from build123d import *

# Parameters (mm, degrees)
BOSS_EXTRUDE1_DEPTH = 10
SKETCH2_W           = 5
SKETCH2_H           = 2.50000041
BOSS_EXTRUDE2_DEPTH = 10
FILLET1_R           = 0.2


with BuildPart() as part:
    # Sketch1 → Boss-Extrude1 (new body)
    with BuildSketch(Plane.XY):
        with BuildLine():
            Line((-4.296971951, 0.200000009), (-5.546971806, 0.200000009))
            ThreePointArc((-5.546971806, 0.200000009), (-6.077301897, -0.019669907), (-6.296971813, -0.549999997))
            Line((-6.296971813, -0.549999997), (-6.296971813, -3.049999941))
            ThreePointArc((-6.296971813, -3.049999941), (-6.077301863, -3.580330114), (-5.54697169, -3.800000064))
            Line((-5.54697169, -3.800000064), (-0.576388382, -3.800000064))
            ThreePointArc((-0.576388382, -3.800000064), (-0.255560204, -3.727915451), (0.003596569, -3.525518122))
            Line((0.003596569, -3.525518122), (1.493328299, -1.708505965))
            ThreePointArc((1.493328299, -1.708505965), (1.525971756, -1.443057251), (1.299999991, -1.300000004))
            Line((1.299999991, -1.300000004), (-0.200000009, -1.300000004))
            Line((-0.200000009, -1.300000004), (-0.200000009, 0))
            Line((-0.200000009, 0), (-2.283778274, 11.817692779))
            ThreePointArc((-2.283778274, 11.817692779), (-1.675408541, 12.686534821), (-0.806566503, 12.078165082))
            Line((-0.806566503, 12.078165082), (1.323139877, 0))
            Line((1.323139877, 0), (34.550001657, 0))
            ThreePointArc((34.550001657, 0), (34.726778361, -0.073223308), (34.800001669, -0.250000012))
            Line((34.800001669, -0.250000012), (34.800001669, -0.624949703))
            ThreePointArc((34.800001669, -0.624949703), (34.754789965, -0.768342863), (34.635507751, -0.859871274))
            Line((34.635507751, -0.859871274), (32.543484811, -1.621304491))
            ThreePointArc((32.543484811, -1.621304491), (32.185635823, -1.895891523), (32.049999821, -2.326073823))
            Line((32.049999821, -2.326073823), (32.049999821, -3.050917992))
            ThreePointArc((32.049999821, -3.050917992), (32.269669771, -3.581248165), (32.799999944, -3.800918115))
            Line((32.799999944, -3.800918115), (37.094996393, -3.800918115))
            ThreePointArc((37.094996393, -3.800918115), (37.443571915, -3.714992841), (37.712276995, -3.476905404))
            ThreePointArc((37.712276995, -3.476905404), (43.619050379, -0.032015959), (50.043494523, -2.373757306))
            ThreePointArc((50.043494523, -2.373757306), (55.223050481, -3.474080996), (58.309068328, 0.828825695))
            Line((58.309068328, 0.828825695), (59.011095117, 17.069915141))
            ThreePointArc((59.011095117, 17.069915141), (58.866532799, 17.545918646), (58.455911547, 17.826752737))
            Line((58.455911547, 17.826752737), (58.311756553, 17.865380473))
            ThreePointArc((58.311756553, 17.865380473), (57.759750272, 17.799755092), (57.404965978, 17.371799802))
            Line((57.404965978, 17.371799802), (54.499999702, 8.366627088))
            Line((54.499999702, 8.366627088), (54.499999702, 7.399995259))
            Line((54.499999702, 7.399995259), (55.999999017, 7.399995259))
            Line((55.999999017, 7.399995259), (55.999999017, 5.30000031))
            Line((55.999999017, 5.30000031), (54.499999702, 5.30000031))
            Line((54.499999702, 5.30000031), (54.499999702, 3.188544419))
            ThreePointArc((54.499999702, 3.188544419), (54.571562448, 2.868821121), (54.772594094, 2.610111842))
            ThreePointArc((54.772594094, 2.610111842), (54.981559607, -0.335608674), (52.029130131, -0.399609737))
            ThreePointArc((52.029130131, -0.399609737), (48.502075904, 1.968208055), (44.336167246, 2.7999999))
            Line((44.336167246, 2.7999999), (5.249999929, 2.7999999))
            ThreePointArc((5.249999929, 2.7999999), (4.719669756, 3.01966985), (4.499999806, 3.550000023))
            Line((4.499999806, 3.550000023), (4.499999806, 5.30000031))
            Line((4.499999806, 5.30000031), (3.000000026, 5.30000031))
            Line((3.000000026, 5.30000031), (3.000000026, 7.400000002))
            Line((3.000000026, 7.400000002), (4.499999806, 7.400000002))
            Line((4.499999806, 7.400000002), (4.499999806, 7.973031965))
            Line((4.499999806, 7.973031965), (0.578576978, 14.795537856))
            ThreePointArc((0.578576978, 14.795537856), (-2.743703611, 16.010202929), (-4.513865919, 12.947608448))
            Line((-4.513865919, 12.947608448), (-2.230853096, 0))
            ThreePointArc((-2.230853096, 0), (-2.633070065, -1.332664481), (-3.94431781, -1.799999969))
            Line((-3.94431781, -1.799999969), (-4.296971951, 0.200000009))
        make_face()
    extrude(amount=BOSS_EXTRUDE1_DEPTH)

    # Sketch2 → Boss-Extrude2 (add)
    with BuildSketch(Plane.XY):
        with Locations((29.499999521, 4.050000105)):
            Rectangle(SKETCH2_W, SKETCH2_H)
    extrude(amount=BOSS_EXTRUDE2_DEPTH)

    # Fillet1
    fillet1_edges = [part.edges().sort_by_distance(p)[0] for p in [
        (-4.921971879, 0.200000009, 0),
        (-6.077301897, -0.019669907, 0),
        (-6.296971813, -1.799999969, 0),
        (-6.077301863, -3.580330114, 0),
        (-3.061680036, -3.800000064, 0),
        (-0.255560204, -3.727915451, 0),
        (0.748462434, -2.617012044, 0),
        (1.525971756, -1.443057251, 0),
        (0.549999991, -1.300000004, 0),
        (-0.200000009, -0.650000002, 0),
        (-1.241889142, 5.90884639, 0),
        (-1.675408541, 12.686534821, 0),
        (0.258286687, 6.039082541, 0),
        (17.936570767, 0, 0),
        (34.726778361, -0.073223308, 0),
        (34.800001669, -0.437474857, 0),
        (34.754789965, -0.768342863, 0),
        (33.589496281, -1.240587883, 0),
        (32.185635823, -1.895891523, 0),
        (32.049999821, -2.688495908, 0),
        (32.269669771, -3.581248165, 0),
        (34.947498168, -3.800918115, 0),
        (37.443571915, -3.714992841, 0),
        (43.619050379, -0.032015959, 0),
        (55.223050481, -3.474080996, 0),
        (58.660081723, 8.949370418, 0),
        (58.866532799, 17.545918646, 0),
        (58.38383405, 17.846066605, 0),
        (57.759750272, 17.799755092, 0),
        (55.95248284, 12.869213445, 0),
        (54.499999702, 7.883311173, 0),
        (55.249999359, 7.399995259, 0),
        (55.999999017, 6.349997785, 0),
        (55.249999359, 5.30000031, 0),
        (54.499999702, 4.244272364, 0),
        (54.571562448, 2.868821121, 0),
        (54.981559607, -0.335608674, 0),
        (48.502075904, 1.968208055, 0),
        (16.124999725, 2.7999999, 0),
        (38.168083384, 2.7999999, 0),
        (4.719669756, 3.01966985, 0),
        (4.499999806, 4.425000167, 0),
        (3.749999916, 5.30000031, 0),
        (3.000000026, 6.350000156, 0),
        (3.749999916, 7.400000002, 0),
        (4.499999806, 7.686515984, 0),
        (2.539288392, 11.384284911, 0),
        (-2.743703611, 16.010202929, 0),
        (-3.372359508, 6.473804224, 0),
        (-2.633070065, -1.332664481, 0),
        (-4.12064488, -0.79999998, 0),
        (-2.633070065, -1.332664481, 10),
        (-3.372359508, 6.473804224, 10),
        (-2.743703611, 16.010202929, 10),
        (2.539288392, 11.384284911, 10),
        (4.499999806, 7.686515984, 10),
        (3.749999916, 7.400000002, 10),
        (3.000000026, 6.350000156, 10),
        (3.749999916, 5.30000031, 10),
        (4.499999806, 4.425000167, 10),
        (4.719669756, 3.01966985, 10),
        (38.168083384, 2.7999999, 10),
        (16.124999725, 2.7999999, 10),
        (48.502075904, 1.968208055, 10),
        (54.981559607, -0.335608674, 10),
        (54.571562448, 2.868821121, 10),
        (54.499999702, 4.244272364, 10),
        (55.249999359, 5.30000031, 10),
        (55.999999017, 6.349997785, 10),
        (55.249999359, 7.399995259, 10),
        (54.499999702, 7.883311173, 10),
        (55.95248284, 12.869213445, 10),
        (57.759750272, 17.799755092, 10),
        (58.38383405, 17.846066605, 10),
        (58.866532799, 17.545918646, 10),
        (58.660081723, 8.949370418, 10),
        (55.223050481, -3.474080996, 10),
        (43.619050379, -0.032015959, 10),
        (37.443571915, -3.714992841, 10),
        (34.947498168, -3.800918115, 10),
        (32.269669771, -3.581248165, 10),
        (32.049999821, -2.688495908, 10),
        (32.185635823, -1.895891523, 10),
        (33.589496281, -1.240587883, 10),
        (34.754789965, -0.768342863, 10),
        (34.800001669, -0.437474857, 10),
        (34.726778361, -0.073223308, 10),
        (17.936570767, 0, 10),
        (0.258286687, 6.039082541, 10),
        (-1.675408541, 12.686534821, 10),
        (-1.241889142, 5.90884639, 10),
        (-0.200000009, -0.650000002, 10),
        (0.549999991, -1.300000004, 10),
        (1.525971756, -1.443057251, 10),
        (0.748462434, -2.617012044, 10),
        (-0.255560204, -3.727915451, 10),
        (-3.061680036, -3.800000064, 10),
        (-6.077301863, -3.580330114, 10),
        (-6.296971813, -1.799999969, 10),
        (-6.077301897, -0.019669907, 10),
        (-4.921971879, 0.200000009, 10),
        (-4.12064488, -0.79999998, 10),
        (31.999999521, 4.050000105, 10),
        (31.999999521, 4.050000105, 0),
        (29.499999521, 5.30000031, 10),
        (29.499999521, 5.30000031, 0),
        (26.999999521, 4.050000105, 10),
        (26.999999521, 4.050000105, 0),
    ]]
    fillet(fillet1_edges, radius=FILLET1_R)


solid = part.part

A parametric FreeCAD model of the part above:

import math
import FreeCAD as App
import Part
import Sketcher

V = App.Vector
Q = App.Units.Quantity


def edges_at(feature, points):
    """Names of the edges that pass closest to the given points."""
    edges = feature.Shape.Edges
    near = lambda p: min(range(len(edges)), key=lambda i: edges[i].distToShape(Part.Vertex(*p))[0])
    return sorted({f"Edge{near(p) + 1}" for p in points})

doc = App.newDocument("Part")
body = doc.addObject("PartDesign::Body", "Body")

# Sketch on XY plane
sketch1 = doc.addObject("Sketcher::SketchObject", "Sketch")
body.addObject(sketch1)
sketch1.AttachmentSupport = (doc.XY_Plane, [""])
sketch1.MapMode = "FlatFace"
sketch1.addGeometry([
    Part.LineSegment(V(-4.3, 0.2, 0), V(-5.55, 0.2, 0)),  # 0
    Part.ArcOfCircle(Part.Circle(V(-5.55, -0.55, 0), V(0, 0, 1), 0.75), math.radians(90), math.radians(180)),  # 1
    Part.LineSegment(V(-6.3, -0.55, 0), V(-6.3, -3.05, 0)),  # 2
    Part.ArcOfCircle(Part.Circle(V(-5.55, -3.05, 0), V(0, 0, 1), 0.75), math.radians(180), math.radians(270)),  # 3
    Part.LineSegment(V(-5.55, -3.8, 0), V(-0.58, -3.8, 0)),  # 4
    Part.ArcOfCircle(Part.Circle(V(-0.58, -3.05, 0), V(0, 0, 1), 0.75), math.radians(-90), math.radians(-39)),  # 5
    Part.LineSegment(V(0, -3.53, 0), V(1.49, -1.71, 0)),  # 6
    Part.ArcOfCircle(Part.Circle(V(1.3, -1.55, 0), V(0, 0, 1), 0.25), math.radians(-39), math.radians(90)),  # 7
    Part.LineSegment(V(1.3, -1.3, 0), V(-0.2, -1.3, 0)),  # 8
    Part.LineSegment(V(-0.2, -1.3, 0), V(-0.2, 0, 0)),  # 9
    Part.LineSegment(V(-0.2, 0, 0), V(-2.28, 11.82, 0)),  # 10
    Part.ArcOfCircle(Part.Circle(V(-1.55, 11.95, 0), V(0, 0, 1), 0.75), math.radians(10), math.radians(190)),  # 11
    Part.LineSegment(V(-0.81, 12.08, 0), V(1.32, 0, 0)),  # 12
    Part.LineSegment(V(1.32, 0, 0), V(34.55, 0, 0)),  # 13
    Part.ArcOfCircle(Part.Circle(V(34.55, -0.25, 0), V(0, 0, 1), 0.25), math.radians(0), math.radians(90)),  # 14
    Part.LineSegment(V(34.8, -0.25, 0), V(34.8, -0.62, 0)),  # 15
    Part.ArcOfCircle(Part.Circle(V(34.55, -0.62, 0), V(0, 0, 1), 0.25), math.radians(-70), math.radians(0)),  # 16
    Part.LineSegment(V(34.64, -0.86, 0), V(32.54, -1.62, 0)),  # 17
    Part.ArcOfCircle(Part.Circle(V(32.8, -2.33, 0), V(0, 0, 1), 0.75), math.radians(110), math.radians(180)),  # 18
    Part.LineSegment(V(32.05, -2.33, 0), V(32.05, -3.05, 0)),  # 19
    Part.ArcOfCircle(Part.Circle(V(32.8, -3.05, 0), V(0, 0, 1), 0.75), math.radians(180), math.radians(270)),  # 20
    Part.LineSegment(V(32.8, -3.8, 0), V(37.09, -3.8, 0)),  # 21
    Part.ArcOfCircle(Part.Circle(V(37.09, -3.05, 0), V(0, 0, 1), 0.75), math.radians(-90), math.radians(-35)),  # 22
    Part.ArcOfCircle(Part.Circle(V(44.34, -8.05, 0), V(0, 0, 1), 8.05), math.radians(45), math.radians(145)),  # 23
    Part.ArcOfCircle(Part.Circle(V(53.47, 1.04, 0), V(0, 0, 1), 4.84), math.radians(-135), math.radians(-2)),  # 24
    Part.LineSegment(V(58.31, 0.83, 0), V(59.01, 17.07, 0)),  # 25
    Part.ArcOfCircle(Part.Circle(V(58.26, 17.1, 0), V(0, 0, 1), 0.75), math.radians(-2), math.radians(75)),  # 26
    Part.LineSegment(V(58.46, 17.83, 0), V(58.31, 17.87, 0)),  # 27
    Part.ArcOfCircle(Part.Circle(V(58.12, 17.14, 0), V(0, 0, 1), 0.75), math.radians(75), math.radians(162)),  # 28
    Part.LineSegment(V(57.4, 17.37, 0), V(54.5, 8.37, 0)),  # 29
    Part.LineSegment(V(54.5, 8.37, 0), V(54.5, 7.4, 0)),  # 30
    Part.LineSegment(V(54.5, 7.4, 0), V(56, 7.4, 0)),  # 31
    Part.LineSegment(V(56, 7.4, 0), V(56, 5.3, 0)),  # 32
    Part.LineSegment(V(56, 5.3, 0), V(54.5, 5.3, 0)),  # 33
    Part.LineSegment(V(54.5, 5.3, 0), V(54.5, 3.19, 0)),  # 34
    Part.ArcOfCircle(Part.Circle(V(55.25, 3.19, 0), V(0, 0, 1), 0.75), math.radians(180), math.radians(230)),  # 35
    Part.ArcOfCircle(Part.Circle(V(53.47, 1.04, 0), V(0, 0, 1), 2.04), math.radians(-135), math.radians(50)),  # 36
    Part.ArcOfCircle(Part.Circle(V(44.34, -8.05, 0), V(0, 0, 1), 10.85), math.radians(45), math.radians(90)),  # 37
    Part.LineSegment(V(44.34, 2.8, 0), V(5.25, 2.8, 0)),  # 38
    Part.ArcOfCircle(Part.Circle(V(5.25, 3.55, 0), V(0, 0, 1), 0.75), math.radians(180), math.radians(270)),  # 39
    Part.LineSegment(V(4.5, 3.55, 0), V(4.5, 5.3, 0)),  # 40
    Part.LineSegment(V(4.5, 5.3, 0), V(3, 5.3, 0)),  # 41
    Part.LineSegment(V(3, 5.3, 0), V(3, 7.4, 0)),  # 42
    Part.LineSegment(V(3, 7.4, 0), V(4.5, 7.4, 0)),  # 43
    Part.LineSegment(V(4.5, 7.4, 0), V(4.5, 7.97, 0)),  # 44
    Part.LineSegment(V(4.5, 7.97, 0), V(0.58, 14.8, 0)),  # 45
    Part.ArcOfCircle(Part.Circle(V(-1.81, 13.43, 0), V(0, 0, 1), 2.75), math.radians(30), math.radians(190)),  # 46
    Part.LineSegment(V(-4.51, 12.95, 0), V(-2.23, 0, 0)),  # 47
    Part.ArcOfCircle(Part.Circle(V(-3.75, -0.27, 0), V(0, 0, 1), 1.54), math.radians(-97), math.radians(10)),  # 48
    Part.LineSegment(V(-3.94, -1.8, 0), V(-4.3, 0.2, 0)),  # 49
], False)
sketch1.addConstraint([
    Sketcher.Constraint("Tangent", 0, 2, 1, 1),
    Sketcher.Constraint("Tangent", 1, 2, 2, 1),
    Sketcher.Constraint("Tangent", 2, 2, 3, 1),
    Sketcher.Constraint("Tangent", 3, 2, 4, 1),
    Sketcher.Constraint("Tangent", 4, 2, 5, 1),
    Sketcher.Constraint("Tangent", 5, 2, 6, 1),
    Sketcher.Constraint("Tangent", 6, 2, 7, 1),
    Sketcher.Constraint("Tangent", 7, 2, 8, 1),
    Sketcher.Constraint("Coincident", 8, 2, 9, 1),
    Sketcher.Constraint("Coincident", 9, 2, 10, 1),
    Sketcher.Constraint("Tangent", 10, 2, 11, 2),
    Sketcher.Constraint("Tangent", 11, 1, 12, 1),
    Sketcher.Constraint("Coincident", 12, 2, 13, 1),
    Sketcher.Constraint("Tangent", 13, 2, 14, 2),
    Sketcher.Constraint("Tangent", 14, 1, 15, 1),
    Sketcher.Constraint("Tangent", 15, 2, 16, 2),
    Sketcher.Constraint("Tangent", 16, 1, 17, 1),
    Sketcher.Constraint("Tangent", 17, 2, 18, 1),
    Sketcher.Constraint("Tangent", 18, 2, 19, 1),
    Sketcher.Constraint("Tangent", 19, 2, 20, 1),
    Sketcher.Constraint("Tangent", 20, 2, 21, 1),
    Sketcher.Constraint("Tangent", 21, 2, 22, 1),
    Sketcher.Constraint("Tangent", 22, 2, 23, 2),
    Sketcher.Constraint("Tangent", 23, 1, 24, 1),
    Sketcher.Constraint("Tangent", 24, 2, 25, 1),
    Sketcher.Constraint("Tangent", 25, 2, 26, 1),
    Sketcher.Constraint("Tangent", 26, 2, 27, 1),
    Sketcher.Constraint("Tangent", 27, 2, 28, 1),
    Sketcher.Constraint("Tangent", 28, 2, 29, 1),
    Sketcher.Constraint("Coincident", 29, 2, 30, 1),
    Sketcher.Constraint("Coincident", 30, 2, 31, 1),
    Sketcher.Constraint("Coincident", 31, 2, 32, 1),
    Sketcher.Constraint("Coincident", 32, 2, 33, 1),
    Sketcher.Constraint("Coincident", 33, 2, 34, 1),
    Sketcher.Constraint("Tangent", 34, 2, 35, 1),
    Sketcher.Constraint("Tangent", 35, 2, 36, 2),
    Sketcher.Constraint("Tangent", 36, 1, 37, 1),
    Sketcher.Constraint("Tangent", 37, 2, 38, 1),
    Sketcher.Constraint("Tangent", 38, 2, 39, 2),
    Sketcher.Constraint("Tangent", 39, 1, 40, 1),
    Sketcher.Constraint("Coincident", 40, 2, 41, 1),
    Sketcher.Constraint("Coincident", 41, 2, 42, 1),
    Sketcher.Constraint("Coincident", 42, 2, 43, 1),
    Sketcher.Constraint("Coincident", 43, 2, 44, 1),
    Sketcher.Constraint("Coincident", 44, 2, 45, 1),
    Sketcher.Constraint("Tangent", 45, 2, 46, 1),
    Sketcher.Constraint("Tangent", 46, 2, 47, 1),
    Sketcher.Constraint("Tangent", 47, 2, 48, 2),
    Sketcher.Constraint("Coincident", 48, 1, 49, 1),
    Sketcher.Constraint("Coincident", 49, 2, 0, 1),
    Sketcher.Constraint("Horizontal", 0),
    Sketcher.Constraint("Vertical", 2),
    Sketcher.Constraint("Horizontal", 4),
    Sketcher.Constraint("Horizontal", 8),
    Sketcher.Constraint("Vertical", 9),
    Sketcher.Constraint("Horizontal", 13),
    Sketcher.Constraint("Vertical", 15),
    Sketcher.Constraint("Vertical", 19),
    Sketcher.Constraint("Horizontal", 21),
    Sketcher.Constraint("Vertical", 30),
    Sketcher.Constraint("Horizontal", 31),
    Sketcher.Constraint("Vertical", 32),
    Sketcher.Constraint("Horizontal", 33),
    Sketcher.Constraint("Vertical", 34),
    Sketcher.Constraint("Horizontal", 38),
    Sketcher.Constraint("Vertical", 40),
    Sketcher.Constraint("Horizontal", 41),
    Sketcher.Constraint("Vertical", 42),
    Sketcher.Constraint("Horizontal", 43),
    Sketcher.Constraint("Vertical", 44),
    Sketcher.Constraint("Coincident", 36, 3, 24, 3),
    Sketcher.Constraint("Equal", 1, 3),
    Sketcher.Constraint("Equal", 3, 5),
    Sketcher.Constraint("Equal", 5, 11),
    Sketcher.Constraint("Equal", 7, 14),
    Sketcher.Constraint("Equal", 14, 16),
    Sketcher.Constraint("Equal", 11, 18),
    Sketcher.Constraint("Equal", 18, 20),
    Sketcher.Constraint("Equal", 20, 22),
    Sketcher.Constraint("Equal", 22, 35),
    Sketcher.Constraint("Equal", 35, 39),
    Sketcher.Constraint("PointOnObject", 9, 2, -1),
    Sketcher.Constraint("PointOnObject", 12, 2, -1),
    Sketcher.Constraint("PointOnObject", 47, 2, -1),
    Sketcher.Constraint("Parallel", 10, 12),
    Sketcher.Constraint("Parallel", 12, 47),
    Sketcher.Constraint("Parallel", 47, 49),
    Sketcher.Constraint("Horizontal", 33, 2, 40, 2),
    Sketcher.Constraint("Vertical", 23, 3, 37, 3),
    Sketcher.Constraint("Vertical", 30, 2, 33, 2),
    Sketcher.Constraint("Vertical", 40, 2, 43, 2),
    Sketcher.Constraint("Equal", 8, 31),
    Sketcher.Constraint("Equal", 33, 41),
    Sketcher.Constraint("Angle", 10, Q("100.000001 deg")),
    Sketcher.Constraint("Radius", 1, 0.75),
    Sketcher.Constraint("Radius", 7, 0.25),
    Sketcher.Constraint("Radius", 46, 2.75),
    Sketcher.Constraint("Distance", 10, 12.0),
    Sketcher.Constraint("DistanceX", 8, 2, 8, 1, 1.5),
    Sketcher.Constraint("DistanceY", 2, 2, 2, 1, 2.5),
    Sketcher.Constraint("DistanceY", 9, 1, 9, 2, 1.3),
    Sketcher.Constraint("DistanceY", 42, 1, 42, 2, 2.1),
    Sketcher.Constraint("DistanceX", -1, 1, 31, 2, 55.999999),
    Sketcher.Constraint("DistanceX", -1, 1, 41, 2, 3.0),
    Sketcher.Constraint("DistanceX", 0, 2, 0, 1, 1.25),
    Sketcher.Constraint("DistanceY", 40, 1, 40, 2, 1.75),
    Sketcher.Constraint("DistanceX", -1, 1, 7, 3, 1.3),
    Sketcher.Constraint("DistanceX", -1, 1, 18, 3, 32.8),
    Sketcher.Constraint("DistanceY", -1, 1, 0, 2, 0.2),
    Sketcher.Constraint("DistanceX", -1, 1, 14, 1, 34.800002),
    Sketcher.Constraint("DistanceY", -1, 1, 32, 2, 5.3),
    Sketcher.Constraint("DistanceY", 48, 1, -1, 1, 1.8),
    Sketcher.Constraint("Radius", 24, 4.838702),
    Sketcher.Constraint("Radius", 37, 10.84807),
    Sketcher.Constraint("Radius", 48, 1.54399),
    Sketcher.Constraint("Radius", 23, 8.048077),
    Sketcher.Constraint("Radius", 26, 0.750006),
    Sketcher.Constraint("Radius", 28, 0.749083),
    Sketcher.Constraint("Radius", 36, 2.038697),
    Sketcher.Constraint("DistanceY", 15, 2, 15, 1, 0.37495),
    Sketcher.Constraint("DistanceY", 30, 2, 30, 1, 0.966632),
    Sketcher.Constraint("DistanceY", 44, 1, 44, 2, 0.573032),
    Sketcher.Constraint("DistanceY", -1, 1, 28, 2, 17.3718),
    Sketcher.Constraint("Distance", 27, 0.149241),
    Sketcher.Constraint("Distance", 45, 7.86919),
    Sketcher.Constraint("DistanceX", 4, 1, 4, 2, 4.970583),
    Sketcher.Constraint("DistanceX", 21, 1, 21, 2, 4.294996),
    Sketcher.Constraint("DistanceX", 38, 2, 38, 1, 39.086167),
    Sketcher.Constraint("DistanceY", 19, 2, 19, 1, 0.724844),
    Sketcher.Constraint("DistanceY", 32, 2, 32, 1, 2.099995),
    Sketcher.Constraint("DistanceY", 34, 2, 34, 1, 2.111456),
    Sketcher.Constraint("DistanceX", 1, 3, -1, 1, 5.546972),
    Sketcher.Constraint("DistanceX", -1, 1, 26, 3, 58.261788),
    Sketcher.Constraint("DistanceX", -1, 1, 26, 2, 58.455912),
])
pad1 = doc.addObject("PartDesign::Pad", "Pad")
body.addObject(pad1)
pad1.Profile = sketch1
pad1.Length = 10

# Sketch on XY plane
sketch2 = doc.addObject("Sketcher::SketchObject", "Sketch001")
body.addObject(sketch2)
sketch2.AttachmentSupport = (doc.XY_Plane, [""])
sketch2.MapMode = "FlatFace"
sketch2.addGeometry([
    Part.LineSegment(V(27, 5.3, 0), V(27, 2.8, 0)),
    Part.LineSegment(V(27, 2.8, 0), V(32, 2.8, 0)),
    Part.LineSegment(V(32, 2.8, 0), V(32, 5.3, 0)),
    Part.LineSegment(V(32, 5.3, 0), V(27, 5.3, 0)),
], False)
sketch2.addConstraint([
    Sketcher.Constraint("Coincident", 0, 2, 1, 1),
    Sketcher.Constraint("Coincident", 1, 2, 2, 1),
    Sketcher.Constraint("Coincident", 2, 2, 3, 1),
    Sketcher.Constraint("Coincident", 3, 2, 0, 1),
    Sketcher.Constraint("Vertical", 0),
    Sketcher.Constraint("Horizontal", 1),
    Sketcher.Constraint("Vertical", 2),
    Sketcher.Constraint("Horizontal", 3),
    Sketcher.Constraint("DistanceX", 1, 1, 1, 2, 5.0),
    Sketcher.Constraint("DistanceY", 0, 2, 0, 1, 2.5),
    Sketcher.Constraint("DistanceX", -1, 1, 0, 2, 27.0),
    Sketcher.Constraint("DistanceY", -1, 1, 0, 2, 2.8),
])
pad2 = doc.addObject("PartDesign::Pad", "Pad001")
body.addObject(pad2)
pad2.Profile = sketch2
pad2.Length = 10
doc.recompute()

fillet = doc.addObject("PartDesign::Fillet", "Fillet")
body.addObject(fillet)
fillet.Base = (pad2, edges_at(pad2, [
    (-4.922, 0.2, 0),
    (-6.077, -0.02, 0),
    (-6.297, -1.8, 0),
    (-6.077, -3.58, 0),
    (-3.062, -3.8, 0),
    (-0.256, -3.728, 0),
    (0.748, -2.617, 0),
    (1.526, -1.443, 0),
    (0.55, -1.3, 0),
    (-0.2, -0.65, 0),
    (-1.242, 5.909, 0),
    (-1.675, 12.687, 0),
    (0.258, 6.039, 0),
    (17.937, 0, 0),
    (34.727, -0.073, 0),
    (34.8, -0.437, 0),
    (34.755, -0.768, 0),
    (33.589, -1.241, 0),
    (32.186, -1.896, 0),
    (32.05, -2.688, 0),
    (32.27, -3.581, 0),
    (34.947, -3.801, 0),
    (37.444, -3.715, 0),
    (43.619, -0.032, 0),
    (55.223, -3.474, 0),
    (58.66, 8.949, 0),
    (58.867, 17.546, 0),
    (58.384, 17.846, 0),
    (57.76, 17.8, 0),
    (55.952, 12.869, 0),
    (54.5, 7.883, 0),
    (55.25, 7.4, 0),
    (56, 6.35, 0),
    (55.25, 5.3, 0),
    (54.5, 4.244, 0),
    (54.572, 2.869, 0),
    (54.982, -0.336, 0),
    (48.502, 1.968, 0),
    (16.125, 2.8, 0),
    (38.168, 2.8, 0),
    (4.72, 3.02, 0),
    (4.5, 4.425, 0),
    (3.75, 5.3, 0),
    (3, 6.35, 0),
    (3.75, 7.4, 0),
    (4.5, 7.687, 0),
    (2.539, 11.384, 0),
    (-2.744, 16.01, 0),
    (-3.372, 6.474, 0),
    (-2.633, -1.333, 0),
    (-4.121, -0.8, 0),
    (-2.633, -1.333, 10),
    (-3.372, 6.474, 10),
    (-2.744, 16.01, 10),
    (2.539, 11.384, 10),
    (4.5, 7.687, 10),
    (3.75, 7.4, 10),
    (3, 6.35, 10),
    (3.75, 5.3, 10),
    (4.5, 4.425, 10),
    (4.72, 3.02, 10),
    (38.168, 2.8, 10),
    (16.125, 2.8, 10),
    (48.502, 1.968, 10),
    (54.982, -0.336, 10),
    (54.572, 2.869, 10),
    (54.5, 4.244, 10),
    (55.25, 5.3, 10),
    (56, 6.35, 10),
    (55.25, 7.4, 10),
    (54.5, 7.883, 10),
    (55.952, 12.869, 10),
    (57.76, 17.8, 10),
    (58.384, 17.846, 10),
    (58.867, 17.546, 10),
    (58.66, 8.949, 10),
    (55.223, -3.474, 10),
    (43.619, -0.032, 10),
    (37.444, -3.715, 10),
    (34.947, -3.801, 10),
    (32.27, -3.581, 10),
    (32.05, -2.688, 10),
    (32.186, -1.896, 10),
    (33.589, -1.241, 10),
    (34.755, -0.768, 10),
    (34.8, -0.437, 10),
    (34.727, -0.073, 10),
    (17.937, 0, 10),
    (0.258, 6.039, 10),
    (-1.675, 12.687, 10),
    (-1.242, 5.909, 10),
    (-0.2, -0.65, 10),
    (0.55, -1.3, 10),
    (1.526, -1.443, 10),
    (0.748, -2.617, 10),
    (-0.256, -3.728, 10),
    (-3.062, -3.8, 10),
    (-6.077, -3.58, 10),
    (-6.297, -1.8, 10),
    (-6.077, -0.02, 10),
    (-4.922, 0.2, 10),
    (-4.121, -0.8, 10),
    (32, 4.05, 10),
    (32, 4.05, 0),
    (29.5, 5.3, 10),
    (29.5, 5.3, 0),
    (27, 4.05, 10),
    (27, 4.05, 0),
]))
fillet.Radius = 0.2

doc.recompute()
